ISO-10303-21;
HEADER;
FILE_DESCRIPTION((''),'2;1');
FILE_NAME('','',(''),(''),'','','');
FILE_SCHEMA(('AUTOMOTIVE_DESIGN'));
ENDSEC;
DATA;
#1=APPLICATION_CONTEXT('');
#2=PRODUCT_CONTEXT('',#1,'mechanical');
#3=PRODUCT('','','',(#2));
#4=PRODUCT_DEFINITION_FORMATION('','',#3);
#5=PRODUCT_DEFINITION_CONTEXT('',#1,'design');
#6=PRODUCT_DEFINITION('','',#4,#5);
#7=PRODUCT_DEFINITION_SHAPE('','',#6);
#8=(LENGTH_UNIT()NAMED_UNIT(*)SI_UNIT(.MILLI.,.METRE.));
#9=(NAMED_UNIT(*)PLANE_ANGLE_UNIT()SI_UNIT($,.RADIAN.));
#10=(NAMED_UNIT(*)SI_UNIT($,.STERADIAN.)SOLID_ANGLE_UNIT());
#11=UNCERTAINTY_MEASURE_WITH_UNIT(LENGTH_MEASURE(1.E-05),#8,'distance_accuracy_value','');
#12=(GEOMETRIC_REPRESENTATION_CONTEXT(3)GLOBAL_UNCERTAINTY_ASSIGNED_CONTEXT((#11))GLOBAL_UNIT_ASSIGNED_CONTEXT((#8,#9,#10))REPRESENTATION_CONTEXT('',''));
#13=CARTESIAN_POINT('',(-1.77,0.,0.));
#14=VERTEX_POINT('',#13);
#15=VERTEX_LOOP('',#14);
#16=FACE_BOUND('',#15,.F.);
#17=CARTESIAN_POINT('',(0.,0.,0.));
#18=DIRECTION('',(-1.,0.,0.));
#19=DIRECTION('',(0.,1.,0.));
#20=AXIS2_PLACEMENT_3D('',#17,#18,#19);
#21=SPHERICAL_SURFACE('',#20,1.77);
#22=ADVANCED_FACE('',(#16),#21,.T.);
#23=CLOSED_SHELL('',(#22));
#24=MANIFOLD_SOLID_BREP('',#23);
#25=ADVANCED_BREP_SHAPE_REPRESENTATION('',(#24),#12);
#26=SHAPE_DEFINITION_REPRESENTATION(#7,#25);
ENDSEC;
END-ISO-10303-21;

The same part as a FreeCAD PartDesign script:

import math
import FreeCAD as App
import Part
import Sketcher
from FreeCAD import Vector

doc = App.newDocument("Part")
body = doc.addObject("PartDesign::Body", "Body")

# Sketch on XY plane
sketch1 = doc.addObject("Sketcher::SketchObject", "Sketch")
body.addObject(sketch1)
sketch1.AttachmentSupport = (doc.XY_Plane, [""])
sketch1.MapMode = "FlatFace"
sketch1.addGeometry(Part.LineSegment(Vector(-1.77, 0, 0), Vector(1.77, 0, 0)), False)
sketch1.addGeometry(Part.ArcOfCircle(Part.Circle(Vector(0, 0, 0), Vector(0, 0, 1), 1.77), math.radians(0), math.radians(180)), False)
sketch1.addConstraint(Sketcher.Constraint("Coincident", 0, 1, 1, 2))
sketch1.addConstraint(Sketcher.Constraint("Coincident", 1, 1, 0, 2))
sketch1.addConstraint(Sketcher.Constraint("Horizontal", 0))
sketch1.addConstraint(Sketcher.Constraint("Coincident", 1, 3, -1, 1))
sketch1.addConstraint(Sketcher.Constraint("PointOnObject", 0, 1, -1))
sketch1.addConstraint(Sketcher.Constraint("Radius", 1, 1.77))
revolution = doc.addObject("PartDesign::Revolution", "Revolution")
body.addObject(revolution)
revolution.Profile = sketch1
revolution.ReferenceAxis = (sketch1, ["H_Axis"])
revolution.Angle = 360

doc.recompute()
